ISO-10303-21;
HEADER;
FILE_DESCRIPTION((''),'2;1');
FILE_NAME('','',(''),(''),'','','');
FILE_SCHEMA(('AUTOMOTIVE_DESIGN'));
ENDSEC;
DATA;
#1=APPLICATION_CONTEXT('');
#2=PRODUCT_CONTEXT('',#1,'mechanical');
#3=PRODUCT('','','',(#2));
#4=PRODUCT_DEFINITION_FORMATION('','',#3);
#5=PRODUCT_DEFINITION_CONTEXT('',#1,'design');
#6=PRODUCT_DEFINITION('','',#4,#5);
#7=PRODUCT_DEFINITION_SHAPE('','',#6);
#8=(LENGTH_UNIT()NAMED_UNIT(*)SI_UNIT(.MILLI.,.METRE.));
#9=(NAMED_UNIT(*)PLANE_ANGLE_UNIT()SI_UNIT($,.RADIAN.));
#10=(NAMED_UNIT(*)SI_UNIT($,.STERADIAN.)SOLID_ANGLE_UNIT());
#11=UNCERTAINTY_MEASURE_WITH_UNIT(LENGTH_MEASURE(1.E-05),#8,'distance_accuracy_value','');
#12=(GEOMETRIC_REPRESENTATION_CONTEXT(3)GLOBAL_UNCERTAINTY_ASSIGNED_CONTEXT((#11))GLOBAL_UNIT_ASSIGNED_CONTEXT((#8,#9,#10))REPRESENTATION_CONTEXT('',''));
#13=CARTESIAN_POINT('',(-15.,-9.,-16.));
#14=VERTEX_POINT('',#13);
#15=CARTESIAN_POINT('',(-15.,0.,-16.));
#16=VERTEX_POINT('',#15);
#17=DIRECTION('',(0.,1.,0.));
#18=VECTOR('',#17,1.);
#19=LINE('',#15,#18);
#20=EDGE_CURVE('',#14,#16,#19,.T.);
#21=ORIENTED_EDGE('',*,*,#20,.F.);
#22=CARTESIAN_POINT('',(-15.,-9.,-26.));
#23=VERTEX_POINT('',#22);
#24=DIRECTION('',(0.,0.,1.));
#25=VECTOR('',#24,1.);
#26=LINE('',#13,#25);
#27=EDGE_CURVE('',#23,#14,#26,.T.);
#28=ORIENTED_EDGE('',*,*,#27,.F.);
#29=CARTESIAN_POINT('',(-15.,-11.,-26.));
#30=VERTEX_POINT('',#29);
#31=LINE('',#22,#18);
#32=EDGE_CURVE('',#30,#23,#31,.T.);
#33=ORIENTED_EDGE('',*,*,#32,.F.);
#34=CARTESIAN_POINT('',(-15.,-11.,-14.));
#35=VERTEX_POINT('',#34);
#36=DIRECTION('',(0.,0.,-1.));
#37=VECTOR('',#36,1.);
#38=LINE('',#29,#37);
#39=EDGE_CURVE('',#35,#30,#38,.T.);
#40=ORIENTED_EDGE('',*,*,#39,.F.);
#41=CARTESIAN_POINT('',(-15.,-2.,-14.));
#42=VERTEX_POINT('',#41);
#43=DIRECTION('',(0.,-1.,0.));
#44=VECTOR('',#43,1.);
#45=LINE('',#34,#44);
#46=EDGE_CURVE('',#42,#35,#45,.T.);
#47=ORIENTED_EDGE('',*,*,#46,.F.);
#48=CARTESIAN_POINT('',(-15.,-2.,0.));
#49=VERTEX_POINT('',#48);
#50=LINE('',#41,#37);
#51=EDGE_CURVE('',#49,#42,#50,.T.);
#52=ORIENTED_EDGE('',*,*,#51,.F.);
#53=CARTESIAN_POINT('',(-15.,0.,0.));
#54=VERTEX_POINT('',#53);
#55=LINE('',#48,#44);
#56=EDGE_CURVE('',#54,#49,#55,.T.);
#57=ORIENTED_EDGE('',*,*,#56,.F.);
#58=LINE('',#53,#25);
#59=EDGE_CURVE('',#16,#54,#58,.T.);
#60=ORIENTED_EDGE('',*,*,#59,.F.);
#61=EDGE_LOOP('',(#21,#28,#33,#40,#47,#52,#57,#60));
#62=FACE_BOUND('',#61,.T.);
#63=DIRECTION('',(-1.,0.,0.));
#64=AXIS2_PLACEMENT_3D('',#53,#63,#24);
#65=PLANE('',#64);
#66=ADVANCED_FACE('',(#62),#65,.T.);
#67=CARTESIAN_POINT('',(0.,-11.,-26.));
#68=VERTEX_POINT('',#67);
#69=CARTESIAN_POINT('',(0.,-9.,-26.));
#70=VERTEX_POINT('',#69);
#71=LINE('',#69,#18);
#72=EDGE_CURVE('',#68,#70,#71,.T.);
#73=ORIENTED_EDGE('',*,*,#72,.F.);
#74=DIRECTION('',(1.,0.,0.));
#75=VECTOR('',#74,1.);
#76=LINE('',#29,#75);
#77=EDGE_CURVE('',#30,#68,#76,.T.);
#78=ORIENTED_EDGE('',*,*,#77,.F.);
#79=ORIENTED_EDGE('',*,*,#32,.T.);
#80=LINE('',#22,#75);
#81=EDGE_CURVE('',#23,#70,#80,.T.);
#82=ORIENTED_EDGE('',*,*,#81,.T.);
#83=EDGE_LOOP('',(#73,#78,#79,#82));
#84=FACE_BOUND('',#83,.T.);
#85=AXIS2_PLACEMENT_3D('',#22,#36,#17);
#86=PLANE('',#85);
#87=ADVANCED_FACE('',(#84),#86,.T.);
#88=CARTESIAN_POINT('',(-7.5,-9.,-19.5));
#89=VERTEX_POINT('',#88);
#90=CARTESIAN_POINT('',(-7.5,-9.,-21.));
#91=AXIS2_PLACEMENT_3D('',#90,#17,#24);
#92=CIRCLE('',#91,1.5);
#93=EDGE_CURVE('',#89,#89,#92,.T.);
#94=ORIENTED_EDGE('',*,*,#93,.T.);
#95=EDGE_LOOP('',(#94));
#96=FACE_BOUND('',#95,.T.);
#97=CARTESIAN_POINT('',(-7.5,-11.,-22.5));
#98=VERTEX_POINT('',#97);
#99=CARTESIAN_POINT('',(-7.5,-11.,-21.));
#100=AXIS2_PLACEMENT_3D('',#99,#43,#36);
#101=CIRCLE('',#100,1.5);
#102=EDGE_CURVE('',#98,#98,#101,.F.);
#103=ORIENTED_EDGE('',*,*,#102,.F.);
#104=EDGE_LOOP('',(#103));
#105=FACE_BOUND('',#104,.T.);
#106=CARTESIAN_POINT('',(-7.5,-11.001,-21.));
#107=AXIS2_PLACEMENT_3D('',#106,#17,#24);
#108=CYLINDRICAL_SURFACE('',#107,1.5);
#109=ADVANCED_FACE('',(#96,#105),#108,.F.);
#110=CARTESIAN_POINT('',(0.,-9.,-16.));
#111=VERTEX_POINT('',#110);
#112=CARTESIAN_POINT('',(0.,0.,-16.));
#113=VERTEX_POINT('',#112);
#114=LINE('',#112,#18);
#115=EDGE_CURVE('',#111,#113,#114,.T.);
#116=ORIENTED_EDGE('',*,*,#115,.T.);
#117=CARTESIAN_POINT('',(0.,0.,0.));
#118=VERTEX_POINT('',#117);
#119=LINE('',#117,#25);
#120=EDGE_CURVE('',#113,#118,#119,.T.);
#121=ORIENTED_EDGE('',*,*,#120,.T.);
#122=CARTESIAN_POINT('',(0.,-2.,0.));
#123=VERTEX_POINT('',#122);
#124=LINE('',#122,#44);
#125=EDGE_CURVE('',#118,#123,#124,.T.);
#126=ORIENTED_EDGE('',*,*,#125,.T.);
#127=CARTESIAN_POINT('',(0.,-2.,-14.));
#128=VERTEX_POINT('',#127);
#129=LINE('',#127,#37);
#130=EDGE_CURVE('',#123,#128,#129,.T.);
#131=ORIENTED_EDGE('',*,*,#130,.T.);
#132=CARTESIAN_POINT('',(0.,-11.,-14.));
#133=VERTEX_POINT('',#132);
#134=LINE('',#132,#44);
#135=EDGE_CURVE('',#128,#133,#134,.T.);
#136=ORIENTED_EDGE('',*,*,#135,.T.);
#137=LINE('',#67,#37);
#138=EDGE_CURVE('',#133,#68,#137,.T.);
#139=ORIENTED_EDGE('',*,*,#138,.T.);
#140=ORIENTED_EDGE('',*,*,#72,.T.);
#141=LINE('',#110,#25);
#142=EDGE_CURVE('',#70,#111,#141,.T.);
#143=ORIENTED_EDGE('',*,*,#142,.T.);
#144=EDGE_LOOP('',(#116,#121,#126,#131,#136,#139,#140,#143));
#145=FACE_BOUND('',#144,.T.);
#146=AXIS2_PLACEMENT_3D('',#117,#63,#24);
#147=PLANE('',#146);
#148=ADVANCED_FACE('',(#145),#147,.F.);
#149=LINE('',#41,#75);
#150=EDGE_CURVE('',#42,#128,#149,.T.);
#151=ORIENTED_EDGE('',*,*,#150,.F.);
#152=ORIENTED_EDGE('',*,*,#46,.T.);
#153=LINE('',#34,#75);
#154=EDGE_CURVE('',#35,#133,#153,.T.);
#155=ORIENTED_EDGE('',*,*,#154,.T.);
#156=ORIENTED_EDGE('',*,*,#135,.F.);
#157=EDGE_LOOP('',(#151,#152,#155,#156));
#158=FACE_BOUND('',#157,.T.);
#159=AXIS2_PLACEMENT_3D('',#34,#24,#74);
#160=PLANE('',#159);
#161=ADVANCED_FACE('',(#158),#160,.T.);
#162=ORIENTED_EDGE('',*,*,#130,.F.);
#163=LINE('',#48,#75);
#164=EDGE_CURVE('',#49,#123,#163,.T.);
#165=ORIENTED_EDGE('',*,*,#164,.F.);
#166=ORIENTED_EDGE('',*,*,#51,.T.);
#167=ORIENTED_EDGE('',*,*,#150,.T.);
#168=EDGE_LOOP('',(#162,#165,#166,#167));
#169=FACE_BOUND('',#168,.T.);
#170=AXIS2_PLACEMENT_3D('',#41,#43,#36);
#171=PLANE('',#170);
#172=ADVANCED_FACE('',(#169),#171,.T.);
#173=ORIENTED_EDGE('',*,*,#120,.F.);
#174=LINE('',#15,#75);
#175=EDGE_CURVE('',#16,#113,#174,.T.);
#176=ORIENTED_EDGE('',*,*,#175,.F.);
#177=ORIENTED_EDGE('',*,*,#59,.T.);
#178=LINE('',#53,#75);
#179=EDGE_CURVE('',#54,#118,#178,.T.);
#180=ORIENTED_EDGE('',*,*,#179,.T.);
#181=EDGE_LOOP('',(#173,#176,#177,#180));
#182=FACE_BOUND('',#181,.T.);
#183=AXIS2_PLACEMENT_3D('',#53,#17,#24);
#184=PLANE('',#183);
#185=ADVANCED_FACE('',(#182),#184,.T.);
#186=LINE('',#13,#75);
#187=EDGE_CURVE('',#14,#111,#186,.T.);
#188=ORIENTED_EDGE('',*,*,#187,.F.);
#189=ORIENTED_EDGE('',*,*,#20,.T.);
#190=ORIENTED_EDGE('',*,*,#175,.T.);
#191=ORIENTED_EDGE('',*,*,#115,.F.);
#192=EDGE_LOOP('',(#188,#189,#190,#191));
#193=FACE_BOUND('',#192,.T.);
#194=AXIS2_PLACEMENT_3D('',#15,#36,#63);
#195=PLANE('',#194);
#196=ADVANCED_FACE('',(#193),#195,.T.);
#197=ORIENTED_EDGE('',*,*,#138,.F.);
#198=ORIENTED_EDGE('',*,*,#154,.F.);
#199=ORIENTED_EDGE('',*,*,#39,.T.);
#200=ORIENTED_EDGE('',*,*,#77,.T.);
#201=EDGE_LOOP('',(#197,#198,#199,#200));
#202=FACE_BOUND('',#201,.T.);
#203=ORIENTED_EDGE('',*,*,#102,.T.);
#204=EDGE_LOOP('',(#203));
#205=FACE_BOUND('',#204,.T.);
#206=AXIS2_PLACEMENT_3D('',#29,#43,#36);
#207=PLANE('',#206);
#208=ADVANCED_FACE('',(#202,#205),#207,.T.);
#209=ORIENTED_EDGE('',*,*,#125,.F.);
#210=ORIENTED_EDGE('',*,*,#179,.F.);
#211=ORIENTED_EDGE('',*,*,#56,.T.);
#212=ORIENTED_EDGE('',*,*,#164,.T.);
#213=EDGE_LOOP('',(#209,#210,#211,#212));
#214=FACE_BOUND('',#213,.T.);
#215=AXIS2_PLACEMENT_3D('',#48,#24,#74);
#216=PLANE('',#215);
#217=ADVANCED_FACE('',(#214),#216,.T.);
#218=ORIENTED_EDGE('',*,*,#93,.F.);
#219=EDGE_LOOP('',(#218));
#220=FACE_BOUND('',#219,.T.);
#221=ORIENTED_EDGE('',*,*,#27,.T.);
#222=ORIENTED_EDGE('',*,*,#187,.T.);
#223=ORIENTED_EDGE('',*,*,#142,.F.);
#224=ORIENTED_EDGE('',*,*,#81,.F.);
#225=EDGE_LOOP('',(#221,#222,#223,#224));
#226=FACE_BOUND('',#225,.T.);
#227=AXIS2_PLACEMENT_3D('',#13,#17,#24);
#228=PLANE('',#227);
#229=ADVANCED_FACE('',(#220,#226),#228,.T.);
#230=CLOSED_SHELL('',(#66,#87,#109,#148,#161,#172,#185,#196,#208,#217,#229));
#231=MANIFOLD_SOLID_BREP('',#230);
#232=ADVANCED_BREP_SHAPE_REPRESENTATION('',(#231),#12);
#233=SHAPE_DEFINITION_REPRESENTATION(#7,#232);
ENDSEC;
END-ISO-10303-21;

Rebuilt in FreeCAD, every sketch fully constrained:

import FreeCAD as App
import Part
import Sketcher
from FreeCAD import Vector
Q = App.Units.Quantity


def add_polygon(sketch, points):
    """Adds a closed chain of lines whose ends are joined by coincident constraints."""
    first, n = sketch.GeometryCount, len(points)
    for a, b in zip(points, points[1:] + points[:1]):
        sketch.addGeometry(Part.LineSegment(App.Vector(*a, 0), App.Vector(*b, 0)), False)
    for i in range(n):
        sketch.addConstraint(Sketcher.Constraint("Coincident", first + i, 2, first + (i + 1) % n, 1))

doc = App.newDocument("Part")
body = doc.addObject("PartDesign::Body", "Body")

sketch1 = doc.addObject("Sketcher::SketchObject", "Sketch")
body.addObject(sketch1)
sketch1.AttachmentSupport = (doc.YZ_Plane, [""])
sketch1.MapMode = "FlatFace"
add_polygon(sketch1, [(0, -16), (0, 0), (-2, 0), (-2, -14), (-11, -14), (-11, -26), (-9, -26), (-9, -16)])
sketch1.addConstraint(Sketcher.Constraint("Vertical", 0))
sketch1.addConstraint(Sketcher.Constraint("Horizontal", 1))
sketch1.addConstraint(Sketcher.Constraint("Vertical", 2))
sketch1.addConstraint(Sketcher.Constraint("Horizontal", 3))
sketch1.addConstraint(Sketcher.Constraint("Vertical", 4))
sketch1.addConstraint(Sketcher.Constraint("Horizontal", 5))
sketch1.addConstraint(Sketcher.Constraint("Vertical", 6))
sketch1.addConstraint(Sketcher.Constraint("Horizontal", 7))
sketch1.addConstraint(Sketcher.Constraint("Coincident", 0, 2, -1, 1))
sketch1.addConstraint(Sketcher.Constraint("Equal", 1, 5))
sketch1.addConstraint(Sketcher.Constraint("DistanceX", 1, 2, 1, 1, Q("2 mm")))
sketch1.addConstraint(Sketcher.Constraint("DistanceX", 3, 2, 3, 1, Q("9 mm")))
sketch1.addConstraint(Sketcher.Constraint("DistanceY", 0, 1, 0, 2, Q("16 mm")))
sketch1.addConstraint(Sketcher.Constraint("DistanceY", 2, 2, 2, 1, Q("14 mm")))
sketch1.addConstraint(Sketcher.Constraint("DistanceY", 4, 2, 4, 1, Q("12 mm")))
pad1 = doc.addObject("PartDesign::Pad", "Pad")
body.addObject(pad1)
pad1.Profile = sketch1
pad1.Length = 15
pad1.Reversed = True

sketch2 = doc.addObject("Sketcher::SketchObject", "Sketch001")
body.addObject(sketch2)
sketch2.AttachmentSupport = (doc.XZ_Plane, [""])
sketch2.MapMode = "FlatFace"
sketch2.AttachmentOffset = App.Placement(Vector(0, 0, 9), App.Rotation())
sketch2.addGeometry(Part.Circle(Vector(-7.5, -21, 0), Vector(0, 0, 1), 1.5), False)
sketch2.addConstraint(Sketcher.Constraint("Diameter", 0, Q("3 mm")))
sketch2.addConstraint(Sketcher.Constraint("DistanceY", 0, 3, -1, 1, Q("21 mm")))
sketch2.addConstraint(Sketcher.Constraint("DistanceX", 0, 3, -1, 1, Q("7.5 mm")))
pocket1 = doc.addObject("PartDesign::Pocket", "Pocket")
body.addObject(pocket1)
pocket1.Profile = sketch2
pocket1.Type = "UpToFirst"
pocket1.Reversed = True

doc.recompute()
